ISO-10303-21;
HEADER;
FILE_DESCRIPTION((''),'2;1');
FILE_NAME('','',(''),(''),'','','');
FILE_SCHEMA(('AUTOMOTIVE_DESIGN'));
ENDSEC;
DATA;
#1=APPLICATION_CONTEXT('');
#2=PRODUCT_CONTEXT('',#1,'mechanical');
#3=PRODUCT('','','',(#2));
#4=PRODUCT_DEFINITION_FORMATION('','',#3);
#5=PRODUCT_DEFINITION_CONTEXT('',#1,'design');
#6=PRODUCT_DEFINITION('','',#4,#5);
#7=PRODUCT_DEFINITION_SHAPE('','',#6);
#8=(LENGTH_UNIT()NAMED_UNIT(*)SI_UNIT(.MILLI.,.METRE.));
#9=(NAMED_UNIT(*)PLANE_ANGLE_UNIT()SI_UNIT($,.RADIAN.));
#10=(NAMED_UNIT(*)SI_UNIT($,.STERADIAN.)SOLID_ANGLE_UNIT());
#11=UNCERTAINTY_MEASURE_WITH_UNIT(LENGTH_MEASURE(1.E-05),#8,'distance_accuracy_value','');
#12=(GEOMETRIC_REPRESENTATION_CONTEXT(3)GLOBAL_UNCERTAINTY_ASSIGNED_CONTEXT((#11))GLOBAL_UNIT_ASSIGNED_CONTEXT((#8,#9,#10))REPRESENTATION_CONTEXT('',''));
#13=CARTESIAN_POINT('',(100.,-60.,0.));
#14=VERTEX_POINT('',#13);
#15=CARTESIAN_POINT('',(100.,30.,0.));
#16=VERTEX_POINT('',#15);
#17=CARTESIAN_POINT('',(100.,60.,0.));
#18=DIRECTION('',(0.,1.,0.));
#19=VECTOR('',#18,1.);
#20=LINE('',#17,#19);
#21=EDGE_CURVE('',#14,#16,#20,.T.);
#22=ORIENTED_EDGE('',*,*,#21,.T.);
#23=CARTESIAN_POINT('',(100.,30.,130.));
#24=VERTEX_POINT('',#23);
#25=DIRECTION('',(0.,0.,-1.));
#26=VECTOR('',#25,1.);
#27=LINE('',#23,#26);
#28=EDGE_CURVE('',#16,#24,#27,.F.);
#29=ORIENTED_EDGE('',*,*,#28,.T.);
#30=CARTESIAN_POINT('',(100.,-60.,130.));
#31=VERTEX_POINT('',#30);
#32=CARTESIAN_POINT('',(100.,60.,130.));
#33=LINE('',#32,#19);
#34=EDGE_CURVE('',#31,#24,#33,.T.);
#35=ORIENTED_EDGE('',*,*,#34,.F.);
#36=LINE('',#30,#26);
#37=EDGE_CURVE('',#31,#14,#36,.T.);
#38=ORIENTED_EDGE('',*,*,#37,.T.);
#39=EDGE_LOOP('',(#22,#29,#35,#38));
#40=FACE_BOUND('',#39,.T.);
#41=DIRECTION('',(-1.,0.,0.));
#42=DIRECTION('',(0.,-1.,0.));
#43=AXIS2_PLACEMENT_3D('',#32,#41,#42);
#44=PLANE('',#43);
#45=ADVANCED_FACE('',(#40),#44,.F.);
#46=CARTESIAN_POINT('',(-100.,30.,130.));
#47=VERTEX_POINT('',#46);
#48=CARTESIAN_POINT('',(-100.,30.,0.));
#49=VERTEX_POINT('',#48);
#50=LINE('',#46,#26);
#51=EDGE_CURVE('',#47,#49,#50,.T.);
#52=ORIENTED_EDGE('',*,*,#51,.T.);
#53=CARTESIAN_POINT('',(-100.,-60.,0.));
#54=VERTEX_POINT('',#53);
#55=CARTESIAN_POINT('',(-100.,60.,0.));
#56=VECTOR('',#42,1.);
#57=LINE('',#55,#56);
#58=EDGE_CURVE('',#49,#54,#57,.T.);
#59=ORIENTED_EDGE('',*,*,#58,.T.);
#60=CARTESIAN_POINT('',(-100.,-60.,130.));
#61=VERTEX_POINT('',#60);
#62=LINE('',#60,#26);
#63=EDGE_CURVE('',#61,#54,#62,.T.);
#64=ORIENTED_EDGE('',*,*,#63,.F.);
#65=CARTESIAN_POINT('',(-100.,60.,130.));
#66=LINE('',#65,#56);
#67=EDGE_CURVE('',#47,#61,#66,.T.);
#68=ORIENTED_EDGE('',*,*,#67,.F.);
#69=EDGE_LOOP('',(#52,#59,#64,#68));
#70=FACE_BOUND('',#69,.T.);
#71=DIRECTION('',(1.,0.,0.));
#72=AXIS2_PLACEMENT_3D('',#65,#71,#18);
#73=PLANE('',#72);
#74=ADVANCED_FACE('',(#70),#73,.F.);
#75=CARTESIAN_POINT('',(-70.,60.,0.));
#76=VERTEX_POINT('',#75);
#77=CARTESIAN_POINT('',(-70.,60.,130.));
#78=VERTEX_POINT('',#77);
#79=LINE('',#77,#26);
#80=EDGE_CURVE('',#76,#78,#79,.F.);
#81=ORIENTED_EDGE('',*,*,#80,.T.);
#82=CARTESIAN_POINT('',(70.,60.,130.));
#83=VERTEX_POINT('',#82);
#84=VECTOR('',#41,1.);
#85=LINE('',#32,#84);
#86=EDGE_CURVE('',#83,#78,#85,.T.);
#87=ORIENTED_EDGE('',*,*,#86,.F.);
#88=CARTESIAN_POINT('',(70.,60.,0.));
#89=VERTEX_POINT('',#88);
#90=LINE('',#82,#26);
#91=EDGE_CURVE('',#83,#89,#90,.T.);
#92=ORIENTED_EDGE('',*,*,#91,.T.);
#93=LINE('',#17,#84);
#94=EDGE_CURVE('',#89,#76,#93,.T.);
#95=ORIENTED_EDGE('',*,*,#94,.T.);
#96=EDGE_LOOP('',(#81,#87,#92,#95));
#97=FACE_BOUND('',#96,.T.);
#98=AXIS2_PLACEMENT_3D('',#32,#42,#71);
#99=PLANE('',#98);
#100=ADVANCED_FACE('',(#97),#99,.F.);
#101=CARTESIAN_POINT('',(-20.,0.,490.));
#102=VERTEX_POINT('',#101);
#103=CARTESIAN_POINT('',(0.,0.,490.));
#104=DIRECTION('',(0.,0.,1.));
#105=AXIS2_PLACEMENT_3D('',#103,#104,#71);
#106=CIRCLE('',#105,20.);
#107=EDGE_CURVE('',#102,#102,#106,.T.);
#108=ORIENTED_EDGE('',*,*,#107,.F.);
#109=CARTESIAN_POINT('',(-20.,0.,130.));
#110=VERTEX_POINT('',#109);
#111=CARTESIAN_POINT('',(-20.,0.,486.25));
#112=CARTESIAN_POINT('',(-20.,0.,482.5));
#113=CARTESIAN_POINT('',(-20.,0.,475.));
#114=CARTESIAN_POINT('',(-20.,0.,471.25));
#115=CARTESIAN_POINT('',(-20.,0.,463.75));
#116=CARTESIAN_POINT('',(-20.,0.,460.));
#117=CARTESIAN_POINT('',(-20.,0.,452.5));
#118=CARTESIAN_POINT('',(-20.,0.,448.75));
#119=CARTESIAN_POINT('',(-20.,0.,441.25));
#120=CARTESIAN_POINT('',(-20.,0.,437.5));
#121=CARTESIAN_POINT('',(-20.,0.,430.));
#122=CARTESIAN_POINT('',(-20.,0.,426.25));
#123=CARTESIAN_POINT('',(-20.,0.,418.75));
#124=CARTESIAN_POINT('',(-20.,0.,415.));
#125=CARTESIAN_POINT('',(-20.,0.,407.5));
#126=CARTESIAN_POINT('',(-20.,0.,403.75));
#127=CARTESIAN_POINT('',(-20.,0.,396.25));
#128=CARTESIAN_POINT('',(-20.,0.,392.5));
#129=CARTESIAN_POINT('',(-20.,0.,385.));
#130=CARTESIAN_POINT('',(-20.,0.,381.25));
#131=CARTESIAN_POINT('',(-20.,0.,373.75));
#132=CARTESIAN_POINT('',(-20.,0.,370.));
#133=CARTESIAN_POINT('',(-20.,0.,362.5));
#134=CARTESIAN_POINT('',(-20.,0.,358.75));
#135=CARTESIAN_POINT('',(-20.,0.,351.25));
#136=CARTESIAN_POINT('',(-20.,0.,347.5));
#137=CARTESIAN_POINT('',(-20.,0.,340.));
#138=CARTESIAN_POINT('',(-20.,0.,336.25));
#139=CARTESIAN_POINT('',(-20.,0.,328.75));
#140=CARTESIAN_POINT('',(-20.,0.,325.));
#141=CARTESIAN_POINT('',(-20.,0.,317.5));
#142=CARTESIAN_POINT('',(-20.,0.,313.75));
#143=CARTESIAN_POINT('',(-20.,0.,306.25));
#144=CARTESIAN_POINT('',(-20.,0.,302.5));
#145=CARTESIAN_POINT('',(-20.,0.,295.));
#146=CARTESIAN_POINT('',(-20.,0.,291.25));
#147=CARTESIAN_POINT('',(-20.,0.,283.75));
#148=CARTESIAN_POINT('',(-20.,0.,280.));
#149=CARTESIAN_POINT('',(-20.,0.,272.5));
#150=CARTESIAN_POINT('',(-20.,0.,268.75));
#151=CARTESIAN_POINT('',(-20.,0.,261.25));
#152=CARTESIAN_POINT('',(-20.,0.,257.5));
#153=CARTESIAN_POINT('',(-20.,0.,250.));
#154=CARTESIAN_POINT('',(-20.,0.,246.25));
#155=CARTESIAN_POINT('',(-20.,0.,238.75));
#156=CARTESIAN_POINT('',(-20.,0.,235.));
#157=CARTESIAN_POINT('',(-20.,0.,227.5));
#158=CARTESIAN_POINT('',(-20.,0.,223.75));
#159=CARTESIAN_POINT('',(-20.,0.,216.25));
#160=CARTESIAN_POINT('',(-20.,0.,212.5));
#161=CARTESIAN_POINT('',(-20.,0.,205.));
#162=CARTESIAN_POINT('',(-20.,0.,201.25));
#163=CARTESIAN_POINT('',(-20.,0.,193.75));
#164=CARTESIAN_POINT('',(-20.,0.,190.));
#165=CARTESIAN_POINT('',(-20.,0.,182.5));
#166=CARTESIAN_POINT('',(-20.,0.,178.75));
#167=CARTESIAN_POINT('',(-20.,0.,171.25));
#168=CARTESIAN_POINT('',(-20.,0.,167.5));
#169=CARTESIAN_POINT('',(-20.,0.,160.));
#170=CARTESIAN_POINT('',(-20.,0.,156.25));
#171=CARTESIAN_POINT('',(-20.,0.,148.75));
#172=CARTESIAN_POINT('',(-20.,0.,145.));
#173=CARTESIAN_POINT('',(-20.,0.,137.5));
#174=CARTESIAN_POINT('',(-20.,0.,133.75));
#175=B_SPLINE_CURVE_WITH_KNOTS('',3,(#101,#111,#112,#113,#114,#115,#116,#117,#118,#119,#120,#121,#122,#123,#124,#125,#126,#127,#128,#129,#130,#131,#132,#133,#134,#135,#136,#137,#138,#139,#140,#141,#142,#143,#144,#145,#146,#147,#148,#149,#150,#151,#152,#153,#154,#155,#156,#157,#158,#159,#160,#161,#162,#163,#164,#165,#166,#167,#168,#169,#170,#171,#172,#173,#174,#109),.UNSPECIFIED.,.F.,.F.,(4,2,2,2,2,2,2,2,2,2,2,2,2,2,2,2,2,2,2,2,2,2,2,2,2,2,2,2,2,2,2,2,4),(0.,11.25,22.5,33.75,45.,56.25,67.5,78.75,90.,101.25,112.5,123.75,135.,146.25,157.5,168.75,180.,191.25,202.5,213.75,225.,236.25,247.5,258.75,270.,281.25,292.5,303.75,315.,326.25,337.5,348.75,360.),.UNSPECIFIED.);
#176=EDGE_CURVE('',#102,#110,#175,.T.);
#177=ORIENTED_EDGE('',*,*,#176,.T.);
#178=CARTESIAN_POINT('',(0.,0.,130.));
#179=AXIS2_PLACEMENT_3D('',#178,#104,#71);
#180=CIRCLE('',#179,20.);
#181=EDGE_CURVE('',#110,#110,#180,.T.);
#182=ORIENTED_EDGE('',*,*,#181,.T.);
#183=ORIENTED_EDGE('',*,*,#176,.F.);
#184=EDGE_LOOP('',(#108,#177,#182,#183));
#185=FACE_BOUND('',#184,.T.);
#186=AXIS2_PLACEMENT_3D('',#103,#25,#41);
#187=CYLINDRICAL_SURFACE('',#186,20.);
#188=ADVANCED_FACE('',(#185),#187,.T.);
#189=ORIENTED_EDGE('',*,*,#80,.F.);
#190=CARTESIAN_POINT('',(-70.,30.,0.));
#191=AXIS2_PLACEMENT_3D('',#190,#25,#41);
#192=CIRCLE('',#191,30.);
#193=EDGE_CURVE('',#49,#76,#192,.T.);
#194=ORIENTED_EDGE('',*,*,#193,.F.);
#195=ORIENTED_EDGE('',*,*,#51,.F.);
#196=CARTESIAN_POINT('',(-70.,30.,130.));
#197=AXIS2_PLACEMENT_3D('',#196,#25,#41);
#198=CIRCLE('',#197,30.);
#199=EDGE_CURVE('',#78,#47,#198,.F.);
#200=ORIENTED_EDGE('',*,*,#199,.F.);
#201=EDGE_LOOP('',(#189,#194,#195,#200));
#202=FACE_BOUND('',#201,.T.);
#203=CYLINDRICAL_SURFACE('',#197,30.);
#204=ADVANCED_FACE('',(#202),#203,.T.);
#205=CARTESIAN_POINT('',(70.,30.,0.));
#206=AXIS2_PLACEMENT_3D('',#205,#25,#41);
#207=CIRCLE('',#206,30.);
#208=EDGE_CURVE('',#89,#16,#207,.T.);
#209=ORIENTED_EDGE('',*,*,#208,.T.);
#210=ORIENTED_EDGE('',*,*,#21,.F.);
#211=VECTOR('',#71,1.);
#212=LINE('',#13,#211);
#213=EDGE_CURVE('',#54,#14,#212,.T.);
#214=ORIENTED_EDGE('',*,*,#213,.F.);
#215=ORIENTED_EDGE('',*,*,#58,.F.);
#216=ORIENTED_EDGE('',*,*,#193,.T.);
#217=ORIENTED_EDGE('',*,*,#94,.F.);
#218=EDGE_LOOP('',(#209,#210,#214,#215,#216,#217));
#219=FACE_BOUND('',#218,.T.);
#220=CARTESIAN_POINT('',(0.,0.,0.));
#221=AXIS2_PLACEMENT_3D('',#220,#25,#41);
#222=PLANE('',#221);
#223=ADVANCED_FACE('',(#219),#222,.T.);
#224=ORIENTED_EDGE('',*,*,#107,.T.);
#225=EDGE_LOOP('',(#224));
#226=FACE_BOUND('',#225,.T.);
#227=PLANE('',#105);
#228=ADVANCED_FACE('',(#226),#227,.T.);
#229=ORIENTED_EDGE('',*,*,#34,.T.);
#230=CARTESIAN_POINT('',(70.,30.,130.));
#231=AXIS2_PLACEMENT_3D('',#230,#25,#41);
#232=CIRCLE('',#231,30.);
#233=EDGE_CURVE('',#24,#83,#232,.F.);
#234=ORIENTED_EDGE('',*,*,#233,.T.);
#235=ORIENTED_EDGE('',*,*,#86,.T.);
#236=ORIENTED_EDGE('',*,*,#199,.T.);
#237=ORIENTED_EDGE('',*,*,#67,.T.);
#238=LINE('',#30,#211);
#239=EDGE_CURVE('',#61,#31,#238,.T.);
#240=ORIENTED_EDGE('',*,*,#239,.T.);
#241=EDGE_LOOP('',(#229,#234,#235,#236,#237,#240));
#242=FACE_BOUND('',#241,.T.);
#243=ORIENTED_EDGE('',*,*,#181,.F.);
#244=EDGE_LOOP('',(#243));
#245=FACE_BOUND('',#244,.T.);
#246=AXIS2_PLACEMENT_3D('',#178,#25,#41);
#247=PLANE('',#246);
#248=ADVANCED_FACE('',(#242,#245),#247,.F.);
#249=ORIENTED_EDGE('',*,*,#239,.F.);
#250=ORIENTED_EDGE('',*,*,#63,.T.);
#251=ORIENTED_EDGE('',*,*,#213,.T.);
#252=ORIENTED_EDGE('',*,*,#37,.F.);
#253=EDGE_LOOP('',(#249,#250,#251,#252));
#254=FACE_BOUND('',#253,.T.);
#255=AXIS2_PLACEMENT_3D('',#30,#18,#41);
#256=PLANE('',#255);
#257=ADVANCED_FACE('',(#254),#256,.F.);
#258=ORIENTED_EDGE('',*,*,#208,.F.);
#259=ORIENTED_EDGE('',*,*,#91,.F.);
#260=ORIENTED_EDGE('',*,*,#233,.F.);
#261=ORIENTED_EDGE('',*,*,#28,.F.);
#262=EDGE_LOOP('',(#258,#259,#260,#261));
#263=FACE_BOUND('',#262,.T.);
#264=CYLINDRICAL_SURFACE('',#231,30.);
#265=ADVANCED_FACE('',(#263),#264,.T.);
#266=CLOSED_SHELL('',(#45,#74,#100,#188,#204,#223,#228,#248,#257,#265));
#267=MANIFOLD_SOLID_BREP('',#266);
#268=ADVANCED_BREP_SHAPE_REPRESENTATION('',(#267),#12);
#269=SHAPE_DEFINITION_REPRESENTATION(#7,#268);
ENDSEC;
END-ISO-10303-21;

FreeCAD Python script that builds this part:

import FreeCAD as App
import Part
import Sketcher

V = App.Vector
Q = App.Units.Quantity


def edges_at(feature, points):
    """Names of the edges that pass closest to the given points."""
    edges = feature.Shape.Edges
    near = lambda p: min(range(len(edges)), key=lambda i: edges[i].distToShape(Part.Vertex(*p))[0])
    return sorted({f"Edge{near(p) + 1}" for p in points})


def add_polygon(sketch, points):
    """Adds a closed chain of lines whose ends are joined by coincident constraints."""
    first, n = sketch.GeometryCount, len(points)
    for a, b in zip(points, points[1:] + points[:1]):
        sketch.addGeometry(Part.LineSegment(App.Vector(*a, 0), App.Vector(*b, 0)), False)
    for i in range(n):
        sketch.addConstraint(Sketcher.Constraint("Coincident", first + i, 2, first + (i + 1) % n, 1))

doc = App.newDocument("Part")
body = doc.addObject("PartDesign::Body", "Body")

# Sketch on XY plane
sketch1 = doc.addObject("Sketcher::SketchObject", "Sketch")
body.addObject(sketch1)
sketch1.AttachmentSupport = (doc.XY_Plane, [""])
sketch1.MapMode = "FlatFace"
add_polygon(sketch1, [(-100, 60), (-100, -60), (100, -60), (100, 60)])  # lines 0-3
sketch1.addConstraint([
    Sketcher.Constraint("Vertical", 0),
    Sketcher.Constraint("Horizontal", 1),
    Sketcher.Constraint("Vertical", 2),
    Sketcher.Constraint("Horizontal", 3),
    Sketcher.Constraint("Symmetric", 0, 2, 2, 2, -1, 1),
    Sketcher.Constraint("DistanceX", 1, 1, 1, 2, Q("200 mm")),
    Sketcher.Constraint("DistanceY", 0, 2, 0, 1, Q("120 mm")),
])
pad1 = doc.addObject("PartDesign::Pad", "Pad")
body.addObject(pad1)
pad1.Profile = sketch1
pad1.Length = 130

# Sketch on XY plane
sketch2 = doc.addObject("Sketcher::SketchObject", "Sketch001")
body.addObject(sketch2)
sketch2.AttachmentSupport = (doc.XY_Plane, [""])
sketch2.MapMode = "FlatFace"
sketch2.AttachmentOffset = App.Placement(V(0, 0, 130), App.Rotation())
sketch2.addGeometry(Part.Circle(V(0, 0, 0), V(0, 0, 1), 20), False)
sketch2.addConstraint([
    Sketcher.Constraint("Coincident", 0, 3, -1, 1),
    Sketcher.Constraint("Diameter", 0, Q("40 mm")),
])
pad2 = doc.addObject("PartDesign::Pad", "Pad001")
body.addObject(pad2)
pad2.Profile = sketch2
pad2.Length = 360
doc.recompute()

fillet = doc.addObject("PartDesign::Fillet", "Fillet")
body.addObject(fillet)
fillet.Base = (pad2, edges_at(pad2, [(-100, 60, 65), (100, 60, 65)]))
fillet.Radius = 30

doc.recompute()
